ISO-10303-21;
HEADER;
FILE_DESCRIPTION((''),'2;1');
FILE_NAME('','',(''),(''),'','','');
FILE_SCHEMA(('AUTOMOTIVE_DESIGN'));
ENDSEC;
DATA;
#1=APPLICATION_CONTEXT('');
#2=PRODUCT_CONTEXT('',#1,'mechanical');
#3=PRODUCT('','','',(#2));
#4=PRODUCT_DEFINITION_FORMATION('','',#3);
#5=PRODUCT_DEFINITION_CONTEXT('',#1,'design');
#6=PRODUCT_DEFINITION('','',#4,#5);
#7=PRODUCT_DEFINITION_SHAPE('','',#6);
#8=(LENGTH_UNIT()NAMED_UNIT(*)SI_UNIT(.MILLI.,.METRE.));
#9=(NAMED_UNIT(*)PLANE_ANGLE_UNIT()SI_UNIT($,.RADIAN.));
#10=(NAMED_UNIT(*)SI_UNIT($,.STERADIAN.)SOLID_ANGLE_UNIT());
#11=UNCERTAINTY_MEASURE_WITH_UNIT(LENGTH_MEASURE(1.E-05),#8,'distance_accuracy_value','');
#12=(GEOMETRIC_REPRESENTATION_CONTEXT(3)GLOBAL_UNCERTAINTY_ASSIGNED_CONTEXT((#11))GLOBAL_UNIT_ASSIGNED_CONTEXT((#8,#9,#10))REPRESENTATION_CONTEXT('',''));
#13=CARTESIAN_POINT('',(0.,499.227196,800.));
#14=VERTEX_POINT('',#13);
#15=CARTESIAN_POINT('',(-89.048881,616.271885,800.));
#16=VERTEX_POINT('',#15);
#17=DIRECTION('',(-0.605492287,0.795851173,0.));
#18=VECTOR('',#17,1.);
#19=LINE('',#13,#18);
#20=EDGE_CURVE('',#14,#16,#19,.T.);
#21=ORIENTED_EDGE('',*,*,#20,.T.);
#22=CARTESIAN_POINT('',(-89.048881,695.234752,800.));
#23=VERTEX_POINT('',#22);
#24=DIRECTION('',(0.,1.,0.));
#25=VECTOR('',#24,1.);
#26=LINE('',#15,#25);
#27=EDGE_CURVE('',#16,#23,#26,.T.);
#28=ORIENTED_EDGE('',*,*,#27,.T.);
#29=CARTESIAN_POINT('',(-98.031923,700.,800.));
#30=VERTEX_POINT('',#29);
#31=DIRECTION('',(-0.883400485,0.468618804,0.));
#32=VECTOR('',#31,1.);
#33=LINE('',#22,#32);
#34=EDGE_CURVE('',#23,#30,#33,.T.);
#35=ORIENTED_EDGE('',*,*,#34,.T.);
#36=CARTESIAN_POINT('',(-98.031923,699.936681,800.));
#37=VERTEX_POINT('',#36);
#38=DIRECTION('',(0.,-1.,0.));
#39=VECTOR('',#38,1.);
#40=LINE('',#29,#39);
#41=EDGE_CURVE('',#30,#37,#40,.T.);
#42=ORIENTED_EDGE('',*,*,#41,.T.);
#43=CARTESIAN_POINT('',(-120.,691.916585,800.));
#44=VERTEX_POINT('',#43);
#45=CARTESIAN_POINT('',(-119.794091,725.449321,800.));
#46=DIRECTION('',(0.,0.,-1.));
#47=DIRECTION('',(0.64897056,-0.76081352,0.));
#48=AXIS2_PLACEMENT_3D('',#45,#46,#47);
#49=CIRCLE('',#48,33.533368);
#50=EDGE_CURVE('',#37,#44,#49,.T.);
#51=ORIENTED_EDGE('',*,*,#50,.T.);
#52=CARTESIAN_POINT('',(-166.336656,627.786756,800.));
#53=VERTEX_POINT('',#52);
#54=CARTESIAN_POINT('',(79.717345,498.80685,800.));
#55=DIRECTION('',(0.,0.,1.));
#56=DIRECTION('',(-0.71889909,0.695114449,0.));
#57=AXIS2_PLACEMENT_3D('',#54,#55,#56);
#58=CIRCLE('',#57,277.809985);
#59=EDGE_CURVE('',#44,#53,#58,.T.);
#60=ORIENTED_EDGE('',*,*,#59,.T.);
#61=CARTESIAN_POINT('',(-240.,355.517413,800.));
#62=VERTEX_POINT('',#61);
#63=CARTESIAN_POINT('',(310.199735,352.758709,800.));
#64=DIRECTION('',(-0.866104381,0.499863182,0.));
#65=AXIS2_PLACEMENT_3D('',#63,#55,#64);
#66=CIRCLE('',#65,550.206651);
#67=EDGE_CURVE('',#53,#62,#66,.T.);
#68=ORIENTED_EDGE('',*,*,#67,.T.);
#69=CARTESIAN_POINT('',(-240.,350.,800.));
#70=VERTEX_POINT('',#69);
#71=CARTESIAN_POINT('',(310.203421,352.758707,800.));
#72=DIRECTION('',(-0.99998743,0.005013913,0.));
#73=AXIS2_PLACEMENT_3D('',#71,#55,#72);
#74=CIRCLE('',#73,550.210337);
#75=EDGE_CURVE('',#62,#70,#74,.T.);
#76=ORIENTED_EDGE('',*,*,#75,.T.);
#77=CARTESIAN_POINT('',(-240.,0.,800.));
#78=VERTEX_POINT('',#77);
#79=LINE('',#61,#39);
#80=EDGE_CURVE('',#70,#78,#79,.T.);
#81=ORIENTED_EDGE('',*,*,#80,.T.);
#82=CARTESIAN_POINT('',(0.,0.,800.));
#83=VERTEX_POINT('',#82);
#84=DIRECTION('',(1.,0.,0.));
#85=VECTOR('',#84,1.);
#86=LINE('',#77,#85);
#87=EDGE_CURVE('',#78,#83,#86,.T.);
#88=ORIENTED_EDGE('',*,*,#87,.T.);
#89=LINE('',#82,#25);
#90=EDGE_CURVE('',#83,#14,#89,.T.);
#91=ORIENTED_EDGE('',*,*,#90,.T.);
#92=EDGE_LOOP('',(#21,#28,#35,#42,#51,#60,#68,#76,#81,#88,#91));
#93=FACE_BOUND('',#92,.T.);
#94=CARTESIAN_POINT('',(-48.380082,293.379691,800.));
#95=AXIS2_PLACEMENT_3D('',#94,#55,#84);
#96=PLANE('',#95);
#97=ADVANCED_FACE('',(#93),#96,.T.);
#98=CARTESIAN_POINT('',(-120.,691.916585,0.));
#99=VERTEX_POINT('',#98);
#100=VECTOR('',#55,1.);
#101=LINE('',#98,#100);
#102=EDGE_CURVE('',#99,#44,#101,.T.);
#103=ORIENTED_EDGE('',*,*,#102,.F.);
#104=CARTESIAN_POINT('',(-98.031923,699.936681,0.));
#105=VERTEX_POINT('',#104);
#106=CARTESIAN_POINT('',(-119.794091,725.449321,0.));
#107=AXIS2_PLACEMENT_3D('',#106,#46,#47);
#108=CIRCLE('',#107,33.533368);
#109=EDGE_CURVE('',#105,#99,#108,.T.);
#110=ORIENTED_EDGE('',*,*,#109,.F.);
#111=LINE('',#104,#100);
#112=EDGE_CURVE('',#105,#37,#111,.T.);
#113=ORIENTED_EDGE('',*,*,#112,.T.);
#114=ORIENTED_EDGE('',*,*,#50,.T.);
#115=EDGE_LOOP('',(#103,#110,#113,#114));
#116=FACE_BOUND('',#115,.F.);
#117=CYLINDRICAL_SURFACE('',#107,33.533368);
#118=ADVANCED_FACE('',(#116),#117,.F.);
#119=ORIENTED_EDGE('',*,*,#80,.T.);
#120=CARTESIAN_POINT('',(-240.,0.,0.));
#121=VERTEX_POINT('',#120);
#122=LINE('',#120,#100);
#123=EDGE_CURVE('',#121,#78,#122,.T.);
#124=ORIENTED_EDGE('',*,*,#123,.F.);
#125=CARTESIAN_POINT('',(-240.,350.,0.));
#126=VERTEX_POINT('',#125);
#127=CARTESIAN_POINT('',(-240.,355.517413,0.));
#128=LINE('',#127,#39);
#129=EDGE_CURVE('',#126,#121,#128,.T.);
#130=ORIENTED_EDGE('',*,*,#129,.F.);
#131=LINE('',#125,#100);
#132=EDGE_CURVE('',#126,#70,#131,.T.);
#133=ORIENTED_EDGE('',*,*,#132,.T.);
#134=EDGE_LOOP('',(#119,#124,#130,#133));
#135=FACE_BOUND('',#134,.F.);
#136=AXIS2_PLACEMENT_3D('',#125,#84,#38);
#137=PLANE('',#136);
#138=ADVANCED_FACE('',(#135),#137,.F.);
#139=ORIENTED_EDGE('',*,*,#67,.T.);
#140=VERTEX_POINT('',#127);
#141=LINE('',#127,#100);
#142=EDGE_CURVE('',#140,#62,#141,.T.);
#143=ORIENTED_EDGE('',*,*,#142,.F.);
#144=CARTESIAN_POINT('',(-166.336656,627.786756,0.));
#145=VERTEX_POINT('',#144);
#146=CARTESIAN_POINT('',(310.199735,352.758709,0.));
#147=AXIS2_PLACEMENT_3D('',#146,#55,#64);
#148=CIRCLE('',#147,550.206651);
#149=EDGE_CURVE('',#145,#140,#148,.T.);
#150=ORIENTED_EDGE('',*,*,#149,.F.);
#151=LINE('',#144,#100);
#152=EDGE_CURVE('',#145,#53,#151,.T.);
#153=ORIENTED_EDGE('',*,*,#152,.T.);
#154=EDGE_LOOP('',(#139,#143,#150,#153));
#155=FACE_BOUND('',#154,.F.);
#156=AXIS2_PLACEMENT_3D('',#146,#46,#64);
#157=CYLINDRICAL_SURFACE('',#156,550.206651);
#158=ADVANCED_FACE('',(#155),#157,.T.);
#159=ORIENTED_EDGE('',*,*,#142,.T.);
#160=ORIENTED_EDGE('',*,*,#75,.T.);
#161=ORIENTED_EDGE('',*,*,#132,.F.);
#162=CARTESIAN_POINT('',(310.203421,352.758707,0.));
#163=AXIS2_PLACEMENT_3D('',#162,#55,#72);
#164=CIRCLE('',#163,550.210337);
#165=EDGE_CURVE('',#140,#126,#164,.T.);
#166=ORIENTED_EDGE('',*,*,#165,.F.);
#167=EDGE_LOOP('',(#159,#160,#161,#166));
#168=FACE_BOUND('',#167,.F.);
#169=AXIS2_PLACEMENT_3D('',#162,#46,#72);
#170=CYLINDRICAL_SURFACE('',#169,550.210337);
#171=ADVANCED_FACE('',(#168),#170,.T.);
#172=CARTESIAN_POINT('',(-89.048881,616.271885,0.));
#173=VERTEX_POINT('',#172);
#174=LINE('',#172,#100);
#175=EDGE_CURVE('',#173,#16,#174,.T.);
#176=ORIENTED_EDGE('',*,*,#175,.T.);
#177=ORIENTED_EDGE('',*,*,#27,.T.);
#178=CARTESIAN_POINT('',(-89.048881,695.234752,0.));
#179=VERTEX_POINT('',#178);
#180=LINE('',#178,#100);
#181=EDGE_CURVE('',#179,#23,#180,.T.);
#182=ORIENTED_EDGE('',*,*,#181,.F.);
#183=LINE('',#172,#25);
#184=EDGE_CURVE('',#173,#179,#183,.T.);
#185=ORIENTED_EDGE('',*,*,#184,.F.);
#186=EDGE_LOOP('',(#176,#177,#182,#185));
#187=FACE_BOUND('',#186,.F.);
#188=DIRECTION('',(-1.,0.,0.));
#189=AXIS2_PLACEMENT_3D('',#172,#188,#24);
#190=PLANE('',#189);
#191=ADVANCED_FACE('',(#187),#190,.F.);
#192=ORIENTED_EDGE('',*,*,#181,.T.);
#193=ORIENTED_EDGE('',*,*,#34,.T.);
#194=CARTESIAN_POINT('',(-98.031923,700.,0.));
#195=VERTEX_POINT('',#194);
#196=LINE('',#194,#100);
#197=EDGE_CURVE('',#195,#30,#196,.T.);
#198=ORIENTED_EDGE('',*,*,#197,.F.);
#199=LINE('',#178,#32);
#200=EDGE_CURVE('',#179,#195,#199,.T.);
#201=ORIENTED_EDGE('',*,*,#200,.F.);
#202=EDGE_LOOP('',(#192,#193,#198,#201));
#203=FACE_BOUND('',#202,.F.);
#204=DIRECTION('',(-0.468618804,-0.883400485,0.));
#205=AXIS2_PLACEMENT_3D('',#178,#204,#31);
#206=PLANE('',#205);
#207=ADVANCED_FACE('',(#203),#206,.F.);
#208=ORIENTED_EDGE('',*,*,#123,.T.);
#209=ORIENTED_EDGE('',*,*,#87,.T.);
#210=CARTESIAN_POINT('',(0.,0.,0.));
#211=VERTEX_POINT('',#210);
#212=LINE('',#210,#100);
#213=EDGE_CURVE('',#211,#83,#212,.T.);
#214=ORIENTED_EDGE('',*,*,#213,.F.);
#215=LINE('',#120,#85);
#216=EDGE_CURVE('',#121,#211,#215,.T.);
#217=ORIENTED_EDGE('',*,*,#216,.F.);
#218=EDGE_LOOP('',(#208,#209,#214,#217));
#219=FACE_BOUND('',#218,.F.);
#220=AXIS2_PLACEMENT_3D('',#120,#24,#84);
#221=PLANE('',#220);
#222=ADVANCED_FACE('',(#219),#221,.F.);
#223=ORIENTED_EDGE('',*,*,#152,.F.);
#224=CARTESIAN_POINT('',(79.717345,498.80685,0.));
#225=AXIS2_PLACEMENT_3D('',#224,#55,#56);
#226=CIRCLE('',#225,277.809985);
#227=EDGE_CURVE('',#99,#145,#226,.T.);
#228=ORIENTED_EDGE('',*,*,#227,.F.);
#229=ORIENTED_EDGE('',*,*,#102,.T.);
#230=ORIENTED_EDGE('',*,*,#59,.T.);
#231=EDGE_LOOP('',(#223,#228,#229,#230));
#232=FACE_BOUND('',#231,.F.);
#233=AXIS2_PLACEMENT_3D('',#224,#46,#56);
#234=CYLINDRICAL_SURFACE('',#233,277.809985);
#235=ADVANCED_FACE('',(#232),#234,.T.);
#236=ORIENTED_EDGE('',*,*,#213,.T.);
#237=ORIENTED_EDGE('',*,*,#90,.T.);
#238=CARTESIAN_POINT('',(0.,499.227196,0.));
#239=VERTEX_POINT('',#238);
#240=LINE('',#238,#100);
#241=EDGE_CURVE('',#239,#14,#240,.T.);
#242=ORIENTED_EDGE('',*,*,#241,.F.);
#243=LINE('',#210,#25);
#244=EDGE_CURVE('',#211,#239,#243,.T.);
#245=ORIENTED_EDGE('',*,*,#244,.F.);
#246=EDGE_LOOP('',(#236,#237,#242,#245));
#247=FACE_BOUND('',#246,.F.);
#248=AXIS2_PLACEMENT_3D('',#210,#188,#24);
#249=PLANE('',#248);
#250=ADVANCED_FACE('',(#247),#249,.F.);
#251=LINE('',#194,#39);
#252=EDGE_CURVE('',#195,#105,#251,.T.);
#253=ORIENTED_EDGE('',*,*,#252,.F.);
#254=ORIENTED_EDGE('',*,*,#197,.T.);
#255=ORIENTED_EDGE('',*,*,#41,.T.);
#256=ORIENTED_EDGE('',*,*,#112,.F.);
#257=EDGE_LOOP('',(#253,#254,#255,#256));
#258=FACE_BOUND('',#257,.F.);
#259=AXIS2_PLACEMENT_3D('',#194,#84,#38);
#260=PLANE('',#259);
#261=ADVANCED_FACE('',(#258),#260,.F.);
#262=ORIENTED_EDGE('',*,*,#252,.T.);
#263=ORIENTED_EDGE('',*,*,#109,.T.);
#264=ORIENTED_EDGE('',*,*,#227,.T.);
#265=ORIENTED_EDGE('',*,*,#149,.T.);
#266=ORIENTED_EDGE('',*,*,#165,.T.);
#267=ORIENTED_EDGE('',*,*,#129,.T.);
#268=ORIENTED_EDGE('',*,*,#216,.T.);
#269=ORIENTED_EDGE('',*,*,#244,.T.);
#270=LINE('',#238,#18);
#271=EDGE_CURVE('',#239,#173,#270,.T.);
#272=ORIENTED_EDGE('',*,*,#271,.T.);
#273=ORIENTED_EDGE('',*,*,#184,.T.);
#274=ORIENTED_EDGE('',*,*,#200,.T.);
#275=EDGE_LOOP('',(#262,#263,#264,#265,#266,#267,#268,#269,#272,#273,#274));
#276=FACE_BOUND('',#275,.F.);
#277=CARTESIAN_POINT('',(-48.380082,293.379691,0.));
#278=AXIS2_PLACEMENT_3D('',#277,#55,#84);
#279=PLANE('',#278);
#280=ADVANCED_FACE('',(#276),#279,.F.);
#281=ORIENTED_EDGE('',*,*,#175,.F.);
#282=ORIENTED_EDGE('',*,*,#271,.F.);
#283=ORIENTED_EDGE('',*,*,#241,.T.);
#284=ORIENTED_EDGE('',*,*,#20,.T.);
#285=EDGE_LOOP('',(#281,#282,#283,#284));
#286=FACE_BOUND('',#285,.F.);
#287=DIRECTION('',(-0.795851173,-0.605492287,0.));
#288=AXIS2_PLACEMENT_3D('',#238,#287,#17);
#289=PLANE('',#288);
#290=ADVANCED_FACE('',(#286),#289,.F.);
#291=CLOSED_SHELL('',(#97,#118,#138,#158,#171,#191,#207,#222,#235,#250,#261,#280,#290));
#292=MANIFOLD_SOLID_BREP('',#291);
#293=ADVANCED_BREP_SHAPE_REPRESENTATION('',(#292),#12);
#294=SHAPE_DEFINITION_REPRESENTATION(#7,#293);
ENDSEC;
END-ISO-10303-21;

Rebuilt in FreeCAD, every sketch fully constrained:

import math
import FreeCAD as App
import Part
import Sketcher
from FreeCAD import Vector

doc = App.newDocument("Part")
body = doc.addObject("PartDesign::Body", "Body")

# Sketch on XY plane
sketch1 = body.newObject("Sketcher::SketchObject", "Sketch")
sketch1.AttachmentSupport = (doc.getObject("XY_Plane"), [""])
sketch1.MapMode = "FlatFace"
sketch1.addGeometry([
    Part.LineSegment(Vector(0, 0, 0), Vector(0, 499.23, 0)),  # 0
    Part.LineSegment(Vector(0, 499.23, 0), Vector(-89.05, 616.27, 0)),  # 1
    Part.LineSegment(Vector(-89.05, 616.27, 0), Vector(-89.05, 695.23, 0)),  # 2
    Part.LineSegment(Vector(-89.05, 695.23, 0), Vector(-98.03, 700, 0)),  # 3
    Part.LineSegment(Vector(-98.03, 700, 0), Vector(-98.03, 699.94, 0)),  # 4
    Part.ArcOfCircle(Part.Circle(Vector(-119.79, 725.45, 0), Vector(0, 0, 1), 33.53), math.radians(-90), math.radians(-50)),  # 5
    Part.ArcOfCircle(Part.Circle(Vector(79.72, 498.81, 0), Vector(0, 0, 1), 277.81), math.radians(135.96), math.radians(152.34)),  # 6
    Part.ArcOfCircle(Part.Circle(Vector(310.2, 352.76, 0), Vector(0, 0, 1), 550.21), math.radians(150), math.radians(180)),  # 7
    Part.ArcOfCircle(Part.Circle(Vector(310.2, 352.76, 0), Vector(0, 0, 1), 550.21), math.radians(179.71), math.radians(180.29)),  # 8
    Part.LineSegment(Vector(-240, 350, 0), Vector(-240, 0, 0)),  # 9
    Part.LineSegment(Vector(-240, 0, 0), Vector(0, 0, 0)),  # 10
], False)
sketch1.addConstraint([
    Sketcher.Constraint("Coincident", 0, 2, 1, 1),
    Sketcher.Constraint("Coincident", 1, 2, 2, 1),
    Sketcher.Constraint("Coincident", 2, 2, 3, 1),
    Sketcher.Constraint("Coincident", 3, 2, 4, 1),
    Sketcher.Constraint("Coincident", 4, 2, 5, 2),
    Sketcher.Constraint("Coincident", 5, 1, 6, 1),
    Sketcher.Constraint("Coincident", 6, 2, 7, 1),
    Sketcher.Constraint("Coincident", 7, 2, 8, 1),
    Sketcher.Constraint("Coincident", 8, 2, 9, 1),
    Sketcher.Constraint("Coincident", 9, 2, 10, 1),
    Sketcher.Constraint("Coincident", 10, 2, 0, 1),
    Sketcher.Constraint("Vertical", 0),
    Sketcher.Constraint("Vertical", 2),
    Sketcher.Constraint("Vertical", 4),
    Sketcher.Constraint("Vertical", 9),
    Sketcher.Constraint("Horizontal", 10),
    Sketcher.Constraint("Coincident", 10, 2, -1, 1),
    Sketcher.Constraint("Vertical", 7, 2, 8, 2),
    Sketcher.Constraint("DistanceX", 10, 1, 10, 2, 240.0),
    Sketcher.Constraint("DistanceY", 9, 2, 9, 1, 350.0),
    Sketcher.Constraint("DistanceY", -1, 1, 3, 2, 700.0),
    Sketcher.Constraint("DistanceX", 5, 1, -1, 1, 120.0),
    Sketcher.Constraint("Radius", 7, 550.206651),
    Sketcher.Constraint("Radius", 5, 33.533368),
    Sketcher.Constraint("Radius", 6, 277.809985),
    Sketcher.Constraint("Radius", 8, 550.210337),
    Sketcher.Constraint("DistanceY", 4, 2, 4, 1, 0.063319),
    Sketcher.Constraint("DistanceY", 6, 3, 2, 2, 196.427902),
    Sketcher.Constraint("DistanceY", 1, 2, 5, 1, 75.6447),
    Sketcher.Constraint("Distance", 3, 10.168708),
    Sketcher.Constraint("DistanceY", 0, 1, 0, 2, 499.227196),
    Sketcher.Constraint("DistanceY", 2, 1, 2, 2, 78.962867),
    Sketcher.Constraint("DistanceX", 5, 3, -1, 1, 119.794091),
    Sketcher.Constraint("DistanceY", -1, 1, 5, 3, 725.449321),
    Sketcher.Constraint("DistanceY", -1, 1, 7, 3, 352.758709),
    Sketcher.Constraint("DistanceX", -1, 1, 8, 3, 310.203421),
])
pad1 = body.newObject("PartDesign::Pad", "Pad")
pad1.Profile = sketch1
pad1.Length = 800

doc.recompute()
